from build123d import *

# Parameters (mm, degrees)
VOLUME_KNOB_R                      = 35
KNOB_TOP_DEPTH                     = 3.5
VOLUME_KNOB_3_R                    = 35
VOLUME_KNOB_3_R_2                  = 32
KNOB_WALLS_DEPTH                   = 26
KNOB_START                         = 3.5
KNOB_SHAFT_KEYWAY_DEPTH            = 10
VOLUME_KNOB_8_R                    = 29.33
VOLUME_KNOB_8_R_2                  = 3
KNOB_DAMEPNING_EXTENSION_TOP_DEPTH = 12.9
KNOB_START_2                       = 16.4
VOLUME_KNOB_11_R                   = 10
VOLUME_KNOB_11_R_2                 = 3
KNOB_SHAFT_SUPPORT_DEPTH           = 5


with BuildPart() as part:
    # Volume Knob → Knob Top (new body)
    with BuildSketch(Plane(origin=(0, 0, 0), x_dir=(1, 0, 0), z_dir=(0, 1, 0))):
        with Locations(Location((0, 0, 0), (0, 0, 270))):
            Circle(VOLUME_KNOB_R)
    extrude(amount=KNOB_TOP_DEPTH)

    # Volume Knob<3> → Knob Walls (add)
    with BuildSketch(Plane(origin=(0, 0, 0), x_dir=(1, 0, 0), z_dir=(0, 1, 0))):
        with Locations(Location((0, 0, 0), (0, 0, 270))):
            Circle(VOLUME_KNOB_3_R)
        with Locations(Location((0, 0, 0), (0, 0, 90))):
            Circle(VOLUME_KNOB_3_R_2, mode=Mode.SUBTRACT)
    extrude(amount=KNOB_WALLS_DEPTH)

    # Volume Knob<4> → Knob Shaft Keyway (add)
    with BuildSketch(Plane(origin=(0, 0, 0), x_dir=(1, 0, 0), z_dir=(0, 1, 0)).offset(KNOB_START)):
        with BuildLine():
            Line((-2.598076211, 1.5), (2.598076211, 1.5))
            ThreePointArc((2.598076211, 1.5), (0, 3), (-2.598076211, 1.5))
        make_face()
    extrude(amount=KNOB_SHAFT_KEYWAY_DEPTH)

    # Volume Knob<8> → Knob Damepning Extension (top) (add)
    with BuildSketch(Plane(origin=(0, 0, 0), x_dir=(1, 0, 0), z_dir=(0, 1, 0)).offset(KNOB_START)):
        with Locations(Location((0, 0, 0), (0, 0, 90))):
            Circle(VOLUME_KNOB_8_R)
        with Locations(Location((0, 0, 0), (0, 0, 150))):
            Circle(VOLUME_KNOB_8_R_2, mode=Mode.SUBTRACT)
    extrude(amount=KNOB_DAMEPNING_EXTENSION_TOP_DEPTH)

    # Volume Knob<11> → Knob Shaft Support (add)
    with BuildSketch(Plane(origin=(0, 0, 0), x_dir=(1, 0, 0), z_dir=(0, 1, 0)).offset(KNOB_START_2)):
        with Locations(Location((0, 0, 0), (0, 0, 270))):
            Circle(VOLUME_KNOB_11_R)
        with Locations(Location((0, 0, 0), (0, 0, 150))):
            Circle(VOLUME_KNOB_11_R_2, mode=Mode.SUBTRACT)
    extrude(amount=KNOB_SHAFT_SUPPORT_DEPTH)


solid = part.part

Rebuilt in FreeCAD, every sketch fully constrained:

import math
import FreeCAD as App
import Part
import Sketcher

doc = App.newDocument("Part")
params = doc.addObject("Spreadsheet::Sheet", "Params")
for row, (alias, value) in enumerate([
    ("sketch1_diameter", "70 mm"),
    ("pad1_length", "3.5 mm"),
    ("sketch2_diameter", "70 mm"),
    ("sketch2_diameter2", "64 mm"),
    ("pad2_length", "26 mm"),
    ("sketch3_radius", "3 mm"),
    ("pad3_length", "10 mm"),
    ("sketch4_diameter", "6 mm"),
    ("sketch4_diameter2", "58.66 mm"),
    ("pad4_length", "12.9 mm"),
    ("sketch5_diameter", "20 mm"),
    ("sketch5_diameter2", "6 mm"),
    ("pad5_length", "5 mm"),
], start=1):
    params.set(f"A{row}", alias)
    params.set(f"B{row}", "=" + value)
    params.setAlias(f"B{row}", alias)

body = doc.addObject("PartDesign::Body", "Body")

# Sketch on XZ plane
sketch1 = doc.addObject("Sketcher::SketchObject", "Sketch")
body.addObject(sketch1)
sketch1.AttachmentSupport = (doc.XZ_Plane, [""])
sketch1.MapMode = "FlatFace"
sketch1.addGeometry(Part.Circle(App.Vector(0, 0, 0), App.Vector(0, 0, 1), 35), False)
sketch1.addConstraint([
    Sketcher.Constraint("Coincident", 0, 3, -1, 1),
    Sketcher.Constraint("Diameter", 0, 70.0),
])
sketch1.setExpression("Constraints[1]", "Params.sketch1_diameter")
pad1 = doc.addObject("PartDesign::Pad", "Pad")
body.addObject(pad1)
pad1.Profile = sketch1
pad1.setExpression("Length", "Params.pad1_length")
pad1.Reversed = True

# Sketch on XZ plane
sketch2 = doc.addObject("Sketcher::SketchObject", "Sketch001")
body.addObject(sketch2)
sketch2.AttachmentSupport = (doc.XZ_Plane, [""])
sketch2.MapMode = "FlatFace"
sketch2.addGeometry([
    Part.Circle(App.Vector(0, 0, 0), App.Vector(0, 0, 1), 35),
    Part.Circle(App.Vector(0, 0, 0), App.Vector(0, 0, 1), 32),
], False)
sketch2.addConstraint([
    Sketcher.Constraint("Coincident", 0, 3, -1, 1),
    Sketcher.Constraint("Coincident", 1, 3, -1, 1),
    Sketcher.Constraint("Diameter", 0, 70.0),
    Sketcher.Constraint("Diameter", 1, 64.0),
])
sketch2.setExpression("Constraints[2]", "Params.sketch2_diameter")
sketch2.setExpression("Constraints[3]", "Params.sketch2_diameter2")
pad2 = doc.addObject("PartDesign::Pad", "Pad001")
body.addObject(pad2)
pad2.Profile = sketch2
pad2.setExpression("Length", "Params.pad2_length")
pad2.Reversed = True

# Sketch on XZ plane
sketch3 = doc.addObject("Sketcher::SketchObject", "Sketch002")
body.addObject(sketch3)
sketch3.AttachmentSupport = (doc.XZ_Plane, [""])
sketch3.MapMode = "FlatFace"
sketch3.AttachmentOffset = App.Placement(App.Vector(0, 0, -3.5), App.Rotation())
sketch3.addGeometry([
    Part.LineSegment(App.Vector(-2.6, -1.5, 0), App.Vector(2.6, -1.5, 0)),
    Part.ArcOfCircle(Part.Circle(App.Vector(0, 0, 0), App.Vector(0, 0, 1), 3), math.radians(-150), math.radians(-30)),
], False)
sketch3.addConstraint([
    Sketcher.Constraint("Coincident", 0, 1, 1, 1),
    Sketcher.Constraint("Coincident", 1, 2, 0, 2),
    Sketcher.Constraint("Horizontal", 0),
    Sketcher.Constraint("Coincident", 1, 3, -1, 1),
    Sketcher.Constraint("Radius", 1, 3.0),
    Sketcher.Constraint("DistanceY", 0, 1, -1, 1, 1.5),
])
sketch3.setExpression("Constraints[4]", "Params.sketch3_radius")
pad3 = doc.addObject("PartDesign::Pad", "Pad002")
body.addObject(pad3)
pad3.Profile = sketch3
pad3.setExpression("Length", "Params.pad3_length")
pad3.Reversed = True

# Sketch on XZ plane
sketch4 = doc.addObject("Sketcher::SketchObject", "Sketch003")
body.addObject(sketch4)
sketch4.AttachmentSupport = (doc.XZ_Plane, [""])
sketch4.MapMode = "FlatFace"
sketch4.AttachmentOffset = App.Placement(App.Vector(0, 0, -3.5), App.Rotation())
sketch4.addGeometry([
    Part.Circle(App.Vector(0, 0, 0), App.Vector(0, 0, 1), 29.3),
    Part.Circle(App.Vector(0, 0, 0), App.Vector(0, 0, 1), 3),
], False)
sketch4.addConstraint([
    Sketcher.Constraint("Coincident", 0, 3, -1, 1),
    Sketcher.Constraint("Coincident", 1, 3, -1, 1),
    Sketcher.Constraint("Diameter", 1, 6.0),
    Sketcher.Constraint("Diameter", 0, 58.66),
])
sketch4.setExpression("Constraints[2]", "Params.sketch4_diameter")
sketch4.setExpression("Constraints[3]", "Params.sketch4_diameter2")
pad4 = doc.addObject("PartDesign::Pad", "Pad003")
body.addObject(pad4)
pad4.Profile = sketch4
pad4.setExpression("Length", "Params.pad4_length")
pad4.Reversed = True

# Sketch on XZ plane
sketch5 = doc.addObject("Sketcher::SketchObject", "Sketch004")
body.addObject(sketch5)
sketch5.AttachmentSupport = (doc.XZ_Plane, [""])
sketch5.MapMode = "FlatFace"
sketch5.AttachmentOffset = App.Placement(App.Vector(0, 0, -16.4), App.Rotation())
sketch5.addGeometry([
    Part.Circle(App.Vector(0, 0, 0), App.Vector(0, 0, 1), 10),
    Part.Circle(App.Vector(0, 0, 0), App.Vector(0, 0, 1), 3),
], False)
sketch5.addConstraint([
    Sketcher.Constraint("Coincident", 0, 3, -1, 1),
    Sketcher.Constraint("Coincident", 1, 3, -1, 1),
    Sketcher.Constraint("Diameter", 0, 20.0),
    Sketcher.Constraint("Diameter", 1, 6.0),
])
sketch5.setExpression("Constraints[2]", "Params.sketch5_diameter")
sketch5.setExpression("Constraints[3]", "Params.sketch5_diameter2")
pad5 = doc.addObject("PartDesign::Pad", "Pad004")
body.addObject(pad5)
pad5.Profile = sketch5
pad5.setExpression("Length", "Params.pad5_length")
pad5.Reversed = True

doc.recompute()
